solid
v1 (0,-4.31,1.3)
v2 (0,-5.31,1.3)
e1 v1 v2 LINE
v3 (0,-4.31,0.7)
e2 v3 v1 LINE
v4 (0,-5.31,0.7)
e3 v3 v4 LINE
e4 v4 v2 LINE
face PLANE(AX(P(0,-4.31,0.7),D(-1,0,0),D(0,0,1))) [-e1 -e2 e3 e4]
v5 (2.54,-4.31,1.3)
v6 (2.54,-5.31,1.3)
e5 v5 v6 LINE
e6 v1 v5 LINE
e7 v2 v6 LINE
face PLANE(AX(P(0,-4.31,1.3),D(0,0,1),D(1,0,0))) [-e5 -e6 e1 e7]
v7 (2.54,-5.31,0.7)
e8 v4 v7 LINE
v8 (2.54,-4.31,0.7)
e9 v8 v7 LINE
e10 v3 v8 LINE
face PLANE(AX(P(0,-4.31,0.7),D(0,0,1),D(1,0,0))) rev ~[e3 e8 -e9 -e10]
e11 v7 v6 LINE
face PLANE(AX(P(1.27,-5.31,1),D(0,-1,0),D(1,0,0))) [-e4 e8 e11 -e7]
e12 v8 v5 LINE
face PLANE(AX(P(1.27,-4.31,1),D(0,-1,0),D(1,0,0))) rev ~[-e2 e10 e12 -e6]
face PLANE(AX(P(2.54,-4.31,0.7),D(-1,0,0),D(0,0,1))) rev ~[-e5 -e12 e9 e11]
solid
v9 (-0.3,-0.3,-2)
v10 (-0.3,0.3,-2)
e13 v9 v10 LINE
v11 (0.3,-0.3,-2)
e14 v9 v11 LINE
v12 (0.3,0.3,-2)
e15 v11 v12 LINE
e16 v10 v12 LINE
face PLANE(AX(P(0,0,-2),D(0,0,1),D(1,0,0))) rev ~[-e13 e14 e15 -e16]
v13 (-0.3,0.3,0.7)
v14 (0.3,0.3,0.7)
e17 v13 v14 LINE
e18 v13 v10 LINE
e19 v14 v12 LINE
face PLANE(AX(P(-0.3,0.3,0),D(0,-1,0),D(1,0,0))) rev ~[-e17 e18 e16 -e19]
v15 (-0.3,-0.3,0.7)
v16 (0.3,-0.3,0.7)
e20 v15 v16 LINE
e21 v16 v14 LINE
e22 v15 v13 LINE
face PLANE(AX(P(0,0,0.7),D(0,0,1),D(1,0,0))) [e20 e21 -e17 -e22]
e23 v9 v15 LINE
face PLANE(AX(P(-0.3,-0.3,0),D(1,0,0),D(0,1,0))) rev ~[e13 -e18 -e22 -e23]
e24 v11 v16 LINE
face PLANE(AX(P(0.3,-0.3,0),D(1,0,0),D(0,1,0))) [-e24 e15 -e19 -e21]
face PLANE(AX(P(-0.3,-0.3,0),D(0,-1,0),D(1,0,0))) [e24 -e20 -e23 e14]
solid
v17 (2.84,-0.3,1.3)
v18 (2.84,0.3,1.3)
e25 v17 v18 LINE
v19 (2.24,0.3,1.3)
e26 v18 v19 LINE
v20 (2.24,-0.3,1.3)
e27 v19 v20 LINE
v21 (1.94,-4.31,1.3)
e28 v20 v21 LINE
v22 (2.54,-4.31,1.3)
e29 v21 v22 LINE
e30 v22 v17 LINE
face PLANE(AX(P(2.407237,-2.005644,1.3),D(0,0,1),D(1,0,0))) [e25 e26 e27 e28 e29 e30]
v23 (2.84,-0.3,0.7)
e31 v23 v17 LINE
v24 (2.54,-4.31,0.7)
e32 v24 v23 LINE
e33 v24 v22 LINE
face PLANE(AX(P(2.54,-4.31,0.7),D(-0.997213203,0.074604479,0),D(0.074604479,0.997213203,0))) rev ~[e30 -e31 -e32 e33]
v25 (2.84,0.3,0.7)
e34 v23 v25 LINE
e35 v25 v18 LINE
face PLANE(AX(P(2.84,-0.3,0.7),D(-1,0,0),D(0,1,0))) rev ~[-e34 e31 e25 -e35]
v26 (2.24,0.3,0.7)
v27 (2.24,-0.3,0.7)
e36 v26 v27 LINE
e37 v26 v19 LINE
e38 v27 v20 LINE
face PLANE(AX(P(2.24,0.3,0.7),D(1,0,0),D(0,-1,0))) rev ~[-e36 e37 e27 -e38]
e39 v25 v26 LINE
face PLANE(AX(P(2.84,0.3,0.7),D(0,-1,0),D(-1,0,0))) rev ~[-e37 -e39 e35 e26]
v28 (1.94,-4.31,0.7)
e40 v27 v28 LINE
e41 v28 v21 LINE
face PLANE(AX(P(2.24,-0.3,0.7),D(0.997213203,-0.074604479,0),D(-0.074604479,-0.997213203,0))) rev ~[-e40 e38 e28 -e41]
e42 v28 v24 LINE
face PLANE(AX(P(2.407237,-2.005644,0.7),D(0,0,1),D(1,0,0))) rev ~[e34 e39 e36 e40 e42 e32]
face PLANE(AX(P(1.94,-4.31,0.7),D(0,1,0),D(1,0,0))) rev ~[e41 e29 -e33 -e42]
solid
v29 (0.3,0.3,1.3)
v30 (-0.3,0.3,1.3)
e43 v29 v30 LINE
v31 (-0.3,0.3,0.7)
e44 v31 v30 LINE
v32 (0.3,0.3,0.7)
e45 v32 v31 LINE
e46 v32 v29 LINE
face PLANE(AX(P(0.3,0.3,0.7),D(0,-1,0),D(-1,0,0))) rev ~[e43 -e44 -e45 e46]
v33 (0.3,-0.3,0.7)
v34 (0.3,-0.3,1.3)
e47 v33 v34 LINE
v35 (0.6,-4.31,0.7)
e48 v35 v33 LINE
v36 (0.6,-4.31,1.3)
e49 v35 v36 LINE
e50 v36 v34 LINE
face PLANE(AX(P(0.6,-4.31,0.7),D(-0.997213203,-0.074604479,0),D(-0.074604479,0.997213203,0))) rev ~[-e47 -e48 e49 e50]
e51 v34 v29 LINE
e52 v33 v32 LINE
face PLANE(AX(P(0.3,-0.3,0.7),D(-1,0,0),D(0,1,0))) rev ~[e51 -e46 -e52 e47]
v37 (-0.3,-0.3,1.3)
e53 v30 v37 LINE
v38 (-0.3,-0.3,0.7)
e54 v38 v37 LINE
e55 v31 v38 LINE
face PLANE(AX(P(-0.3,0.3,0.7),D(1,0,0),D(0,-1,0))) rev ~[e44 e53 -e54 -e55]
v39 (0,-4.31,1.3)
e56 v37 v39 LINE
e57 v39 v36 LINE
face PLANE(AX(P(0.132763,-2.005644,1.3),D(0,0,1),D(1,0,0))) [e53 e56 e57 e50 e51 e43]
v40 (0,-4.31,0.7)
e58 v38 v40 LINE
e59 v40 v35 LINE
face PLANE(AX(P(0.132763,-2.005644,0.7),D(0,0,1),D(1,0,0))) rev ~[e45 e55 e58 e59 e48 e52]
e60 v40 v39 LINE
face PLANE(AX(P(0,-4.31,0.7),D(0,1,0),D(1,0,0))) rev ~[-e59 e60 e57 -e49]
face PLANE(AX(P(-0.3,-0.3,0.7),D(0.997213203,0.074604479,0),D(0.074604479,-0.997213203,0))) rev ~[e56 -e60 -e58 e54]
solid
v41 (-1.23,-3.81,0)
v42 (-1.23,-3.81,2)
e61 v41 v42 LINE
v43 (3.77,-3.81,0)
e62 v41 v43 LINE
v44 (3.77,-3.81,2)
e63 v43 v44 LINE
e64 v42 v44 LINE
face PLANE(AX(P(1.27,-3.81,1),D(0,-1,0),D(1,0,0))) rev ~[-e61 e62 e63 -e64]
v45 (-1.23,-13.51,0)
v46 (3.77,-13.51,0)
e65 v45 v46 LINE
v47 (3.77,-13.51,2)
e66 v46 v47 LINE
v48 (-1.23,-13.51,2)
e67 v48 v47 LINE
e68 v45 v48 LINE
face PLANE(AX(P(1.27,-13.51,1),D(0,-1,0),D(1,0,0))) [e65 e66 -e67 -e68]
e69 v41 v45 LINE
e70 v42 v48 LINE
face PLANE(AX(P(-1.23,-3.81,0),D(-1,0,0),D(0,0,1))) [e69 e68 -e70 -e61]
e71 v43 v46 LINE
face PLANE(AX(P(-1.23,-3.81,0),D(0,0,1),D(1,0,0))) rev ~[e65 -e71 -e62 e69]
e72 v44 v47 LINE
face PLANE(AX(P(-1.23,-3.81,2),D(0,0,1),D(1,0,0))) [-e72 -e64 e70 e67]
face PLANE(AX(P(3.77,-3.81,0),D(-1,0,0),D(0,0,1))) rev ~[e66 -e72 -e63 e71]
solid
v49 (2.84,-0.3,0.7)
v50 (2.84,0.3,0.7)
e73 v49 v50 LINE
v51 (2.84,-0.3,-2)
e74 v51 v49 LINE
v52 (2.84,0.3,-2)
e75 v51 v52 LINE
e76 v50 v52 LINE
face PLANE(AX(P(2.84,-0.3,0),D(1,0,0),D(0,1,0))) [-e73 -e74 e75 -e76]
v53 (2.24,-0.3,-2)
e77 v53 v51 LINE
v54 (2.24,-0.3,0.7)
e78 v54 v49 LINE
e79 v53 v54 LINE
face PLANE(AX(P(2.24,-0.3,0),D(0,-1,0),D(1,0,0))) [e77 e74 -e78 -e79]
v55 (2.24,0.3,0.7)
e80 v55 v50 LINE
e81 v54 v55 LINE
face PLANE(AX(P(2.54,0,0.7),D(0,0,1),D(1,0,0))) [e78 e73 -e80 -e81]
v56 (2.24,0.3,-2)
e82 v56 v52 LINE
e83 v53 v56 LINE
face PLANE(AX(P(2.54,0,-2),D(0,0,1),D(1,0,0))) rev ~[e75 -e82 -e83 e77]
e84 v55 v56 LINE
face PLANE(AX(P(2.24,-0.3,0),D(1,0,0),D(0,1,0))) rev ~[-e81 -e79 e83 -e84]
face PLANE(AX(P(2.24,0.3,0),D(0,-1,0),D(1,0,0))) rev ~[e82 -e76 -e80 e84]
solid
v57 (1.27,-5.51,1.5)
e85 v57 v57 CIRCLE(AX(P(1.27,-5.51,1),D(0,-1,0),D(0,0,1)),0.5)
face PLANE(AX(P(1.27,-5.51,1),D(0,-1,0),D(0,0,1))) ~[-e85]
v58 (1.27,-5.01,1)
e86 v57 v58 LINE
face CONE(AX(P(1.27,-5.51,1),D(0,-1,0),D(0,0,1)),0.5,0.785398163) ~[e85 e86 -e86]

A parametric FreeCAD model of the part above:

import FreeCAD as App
import Part
import Sketcher

V = App.Vector


def add_polygon(sketch, points):
    """Adds a closed chain of lines whose ends are joined by coincident constraints."""
    first, n = sketch.GeometryCount, len(points)
    for a, b in zip(points, points[1:] + points[:1]):
        sketch.addGeometry(Part.LineSegment(App.Vector(*a, 0), App.Vector(*b, 0)), False)
    for i in range(n):
        sketch.addConstraint(Sketcher.Constraint("Coincident", first + i, 2, first + (i + 1) % n, 1))

doc = App.newDocument("Part")
params = doc.addObject("Spreadsheet::Sheet", "Params")
for row, (alias, value) in enumerate([
    ("sketch1_width", "0.6 mm"),
    ("pad1_length", "0.7 mm"),
    ("pad1_length2", "2 mm"),
    ("sketch2_width", "0.6 mm"),
    ("pad2_length", "0.6 mm"),
    ("sketch3_height", "0.6 mm"),
    ("sketch3_width", "2.54 mm"),
    ("pad3_length", "1 mm"),
    ("sketch4_width", "5 mm"),
    ("sketch4_height", "2 mm"),
    ("pad4_length", "9.7 mm"),
    ("sketch5_width", "0.5 mm"),
    ("revolution_angle", "360 deg"),
], start=1):
    params.set(f"A{row}", alias)
    params.set(f"B{row}", "=" + value)
    params.setAlias(f"B{row}", alias)

body = doc.addObject("PartDesign::Body", "Body")
body.AllowCompound = True

# Sketch on XY plane
sketch1 = doc.addObject("Sketcher::SketchObject", "Sketch")
body.addObject(sketch1)
sketch1.AttachmentSupport = (doc.XY_Plane, [""])
sketch1.MapMode = "FlatFace"
add_polygon(sketch1, [(-0.3, 0.3), (-0.3, -0.3), (0.3, -0.3), (0.3, 0.3)])  # lines 0-3
add_polygon(sketch1, [(2.2, 0.3), (2.2, -0.3), (2.8, -0.3), (2.8, 0.3)])  # lines 4-7
sketch1.addConstraint([
    Sketcher.Constraint("Vertical", 0),
    Sketcher.Constraint("Horizontal", 1),
    Sketcher.Constraint("Vertical", 2),
    Sketcher.Constraint("Horizontal", 3),
    Sketcher.Constraint("Vertical", 4),
    Sketcher.Constraint("Horizontal", 5),
    Sketcher.Constraint("Vertical", 6),
    Sketcher.Constraint("Horizontal", 7),
    Sketcher.Constraint("Symmetric", 0, 2, 2, 2, -1, 1),
    Sketcher.Constraint("Horizontal", 1, 2, 4, 2),
    Sketcher.Constraint("Horizontal", 3, 2, 6, 2),
    Sketcher.Constraint("Equal", 3, 5),
    Sketcher.Constraint("Equal", 7, 0),
    Sketcher.Constraint("DistanceX", 1, 1, 1, 2, 0.6),
    Sketcher.Constraint("DistanceX", -1, 1, 4, 2, 2.24),
])
sketch1.setExpression("Constraints[21]", "Params.sketch1_width")
pad1 = doc.addObject("PartDesign::Pad", "Pad")
body.addObject(pad1)
pad1.Profile = sketch1
pad1.Type = "TwoLengths"
pad1.setExpression("Length", "Params.pad1_length")
pad1.setExpression("Length2", "Params.pad1_length2")
body2 = doc.addObject("PartDesign::Body", "Body001")
body2.AllowCompound = True

# Sketch on XY plane
sketch2 = doc.addObject("Sketcher::SketchObject", "Sketch001")
body2.addObject(sketch2)
sketch2.AttachmentSupport = (doc.getObject("XY_Plane001"), [""])
sketch2.MapMode = "FlatFace"
sketch2.AttachmentOffset = App.Placement(V(0, 0, 0.7), App.Rotation())
add_polygon(sketch2, [(0.3, 0.3), (-0.3, 0.3), (-0.3, -0.3), (0, -4.3), (0.6, -4.3), (0.3, -0.3)])  # lines 0-5
add_polygon(sketch2, [(2.8, 0.3), (2.2, 0.3), (2.2, -0.3), (1.9, -4.3), (2.5, -4.3), (2.8, -0.3)])  # lines 6-11
sketch2.addConstraint([
    Sketcher.Constraint("Horizontal", 0),
    Sketcher.Constraint("Vertical", 1),
    Sketcher.Constraint("Horizontal", 3),
    Sketcher.Constraint("Vertical", 5),
    Sketcher.Constraint("Horizontal", 6),
    Sketcher.Constraint("Vertical", 7),
    Sketcher.Constraint("Horizontal", 9),
    Sketcher.Constraint("Vertical", 11),
    Sketcher.Constraint("Symmetric", 0, 2, 4, 2, -1, 1),
    Sketcher.Constraint("PointOnObject", 2, 2, -2),
    Sketcher.Constraint("Parallel", 2, 4),
    Sketcher.Constraint("Parallel", 8, 10),
    Sketcher.Constraint("Horizontal", 1, 2, 4, 2),
    Sketcher.Constraint("Horizontal", 5, 2, 6, 2),
    Sketcher.Constraint("Horizontal", 4, 2, 7, 2),
    Sketcher.Constraint("Horizontal", 3, 2, 8, 2),
    Sketcher.Constraint("Horizontal", 7, 2, 10, 2),
    Sketcher.Constraint("Equal", 3, 6),
    Sketcher.Constraint("Equal", 9, 1),
    Sketcher.Constraint("Equal", 4, 8),
    Sketcher.Constraint("DistanceX", 0, 2, 0, 1, 0.6),
    Sketcher.Constraint("DistanceY", 2, 2, -1, 1, 4.31),
    Sketcher.Constraint("DistanceX", -1, 1, 6, 2, 2.24),
])
sketch2.setExpression("Constraints[32]", "Params.sketch2_width")
pad2 = doc.addObject("PartDesign::Pad", "Pad001")
body2.addObject(pad2)
pad2.Profile = sketch2
pad2.setExpression("Length", "Params.pad2_length")
body3 = doc.addObject("PartDesign::Body", "Body002")

# Sketch on XZ plane
sketch3 = doc.addObject("Sketcher::SketchObject", "Sketch002")
body3.addObject(sketch3)
sketch3.AttachmentSupport = (doc.getObject("XZ_Plane002"), [""])
sketch3.MapMode = "FlatFace"
sketch3.AttachmentOffset = App.Placement(V(0, 0, 4.31), App.Rotation())
add_polygon(sketch3, [(0, 1.3), (0, 0.7), (2.5, 0.7), (2.5, 1.3)])  # lines 0-3
sketch3.addConstraint([
    Sketcher.Constraint("Vertical", 0),
    Sketcher.Constraint("Horizontal", 1),
    Sketcher.Constraint("Vertical", 2),
    Sketcher.Constraint("Horizontal", 3),
    Sketcher.Constraint("PointOnObject", 0, 2, -2),
    Sketcher.Constraint("DistanceY", 0, 2, 0, 1, 0.6),
    Sketcher.Constraint("DistanceX", 1, 1, 1, 2, 2.54),
    Sketcher.Constraint("DistanceY", -1, 1, 0, 2, 0.7),
])
sketch3.setExpression("Constraints[9]", "Params.sketch3_height")
sketch3.setExpression("Constraints[10]", "Params.sketch3_width")
pad3 = doc.addObject("PartDesign::Pad", "Pad002")
body3.addObject(pad3)
pad3.Profile = sketch3
pad3.setExpression("Length", "Params.pad3_length")
body4 = doc.addObject("PartDesign::Body", "Body003")

# Sketch on XZ plane
sketch4 = doc.addObject("Sketcher::SketchObject", "Sketch003")
body4.addObject(sketch4)
sketch4.AttachmentSupport = (doc.getObject("XZ_Plane003"), [""])
sketch4.MapMode = "FlatFace"
sketch4.AttachmentOffset = App.Placement(V(0, 0, 3.81), App.Rotation())
add_polygon(sketch4, [(-1.2, 2), (-1.2, 0), (3.8, 0), (3.8, 2)])  # lines 0-3
sketch4.addConstraint([
    Sketcher.Constraint("Vertical", 0),
    Sketcher.Constraint("Horizontal", 1),
    Sketcher.Constraint("Vertical", 2),
    Sketcher.Constraint("Horizontal", 3),
    Sketcher.Constraint("PointOnObject", 0, 2, -1),
    Sketcher.Constraint("DistanceX", 1, 1, 1, 2, 5.0),
    Sketcher.Constraint("DistanceY", 0, 2, 0, 1, 2.0),
    Sketcher.Constraint("DistanceX", 0, 2, -1, 1, 1.23),
])
sketch4.setExpression("Constraints[9]", "Params.sketch4_width")
sketch4.setExpression("Constraints[10]", "Params.sketch4_height")
pad4 = doc.addObject("PartDesign::Pad", "Pad003")
body4.addObject(pad4)
pad4.Profile = sketch4
pad4.setExpression("Length", "Params.pad4_length")
body5 = doc.addObject("PartDesign::Body", "Body004")

# Sketch on YZ plane
sketch5 = doc.addObject("Sketcher::SketchObject", "Sketch004")
body5.addObject(sketch5)
sketch5.AttachmentSupport = (doc.getObject("YZ_Plane004"), [""])
sketch5.MapMode = "FlatFace"
sketch5.AttachmentOffset = App.Placement(V(0, 0, 1.27), App.Rotation())
add_polygon(sketch5, [(-5.5, 1), (-5, 1), (-5.5, 1.5)])  # lines 0-2
sketch5.addGeometry(Part.LineSegment(V(-5, 1, 0), V(-5.5, 1, 0)), True)  # axis
sketch5.addConstraint([
    Sketcher.Constraint("Horizontal", 0),
    Sketcher.Constraint("Vertical", 2),
    Sketcher.Constraint("Horizontal", 3),
    Sketcher.Constraint("Coincident", 3, 1, 0, 2),
    Sketcher.Constraint("Vertical", 1, 2, 3, 2),
    Sketcher.Constraint("Equal", 3, 2),
    Sketcher.Constraint("DistanceX", 0, 1, 0, 2, 0.5),
    Sketcher.Constraint("DistanceY", -1, 1, 0, 2, 1.0),
    Sketcher.Constraint("DistanceX", 0, 2, -1, 1, 5.01),
])
sketch5.setExpression("Constraints[9]", "Params.sketch5_width")
revolution = doc.addObject("PartDesign::Revolution", "Revolution")
body5.addObject(revolution)
revolution.Profile = sketch5
revolution.ReferenceAxis = (sketch5, ["Axis0"])
revolution.setExpression("Angle", "Params.revolution_angle")

doc.recompute()
